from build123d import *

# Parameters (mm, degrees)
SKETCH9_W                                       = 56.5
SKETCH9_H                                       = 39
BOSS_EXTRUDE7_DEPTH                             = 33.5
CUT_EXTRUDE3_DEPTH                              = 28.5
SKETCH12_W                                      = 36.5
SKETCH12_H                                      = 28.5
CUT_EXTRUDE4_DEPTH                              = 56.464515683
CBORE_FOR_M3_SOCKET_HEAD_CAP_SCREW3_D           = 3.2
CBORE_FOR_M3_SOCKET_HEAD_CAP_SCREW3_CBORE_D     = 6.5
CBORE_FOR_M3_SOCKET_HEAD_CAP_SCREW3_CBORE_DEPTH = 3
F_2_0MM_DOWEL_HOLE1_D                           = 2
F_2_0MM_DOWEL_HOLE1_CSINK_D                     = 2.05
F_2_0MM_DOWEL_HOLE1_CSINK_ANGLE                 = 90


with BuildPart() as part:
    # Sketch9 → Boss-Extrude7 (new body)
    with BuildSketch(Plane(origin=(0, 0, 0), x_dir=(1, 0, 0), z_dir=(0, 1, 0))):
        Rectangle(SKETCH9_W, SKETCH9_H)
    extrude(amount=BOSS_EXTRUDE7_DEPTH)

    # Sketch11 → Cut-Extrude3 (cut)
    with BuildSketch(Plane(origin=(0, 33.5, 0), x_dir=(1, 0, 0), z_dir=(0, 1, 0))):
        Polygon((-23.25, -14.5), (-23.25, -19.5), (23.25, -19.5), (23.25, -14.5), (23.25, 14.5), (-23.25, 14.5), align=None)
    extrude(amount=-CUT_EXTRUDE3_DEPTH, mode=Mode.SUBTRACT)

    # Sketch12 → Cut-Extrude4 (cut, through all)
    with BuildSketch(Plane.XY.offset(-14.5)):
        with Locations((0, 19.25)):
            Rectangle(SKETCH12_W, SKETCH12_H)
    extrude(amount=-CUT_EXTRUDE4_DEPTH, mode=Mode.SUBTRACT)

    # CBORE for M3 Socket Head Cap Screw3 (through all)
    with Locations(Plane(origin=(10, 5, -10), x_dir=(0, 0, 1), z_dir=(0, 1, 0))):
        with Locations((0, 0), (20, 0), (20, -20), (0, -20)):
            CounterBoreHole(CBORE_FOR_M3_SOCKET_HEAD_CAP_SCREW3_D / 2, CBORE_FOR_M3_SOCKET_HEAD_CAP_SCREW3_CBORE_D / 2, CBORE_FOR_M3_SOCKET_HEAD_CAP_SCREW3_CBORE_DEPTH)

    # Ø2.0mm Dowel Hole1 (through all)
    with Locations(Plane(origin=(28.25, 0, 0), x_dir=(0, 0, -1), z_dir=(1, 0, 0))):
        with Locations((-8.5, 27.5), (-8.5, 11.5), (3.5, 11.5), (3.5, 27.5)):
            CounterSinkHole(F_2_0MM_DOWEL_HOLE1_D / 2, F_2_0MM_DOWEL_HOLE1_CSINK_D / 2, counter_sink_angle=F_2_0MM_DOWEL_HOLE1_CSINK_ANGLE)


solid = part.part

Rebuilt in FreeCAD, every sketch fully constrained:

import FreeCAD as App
import Part
import Sketcher


def add_polygon(sketch, points):
    """Adds a closed chain of lines whose ends are joined by coincident constraints."""
    first, n = sketch.GeometryCount, len(points)
    for a, b in zip(points, points[1:] + points[:1]):
        sketch.addGeometry(Part.LineSegment(App.Vector(*a, 0), App.Vector(*b, 0)), False)
    for i in range(n):
        sketch.addConstraint(Sketcher.Constraint("Coincident", first + i, 2, first + (i + 1) % n, 1))

doc = App.newDocument("Part")
body = doc.addObject("PartDesign::Body", "Body")

# Sketch on XZ plane
sketch1 = body.newObject("Sketcher::SketchObject", "Sketch")
sketch1.AttachmentSupport = (doc.getObject("XZ_Plane"), [""])
sketch1.MapMode = "FlatFace"
add_polygon(sketch1, [(-28.25, -19.5), (-28.25, 19.5), (28.25, 19.5), (28.25, -19.5)])  # lines 0-3
sketch1.addConstraint(Sketcher.Constraint("Vertical", 0))
sketch1.addConstraint(Sketcher.Constraint("Horizontal", 1))
sketch1.addConstraint(Sketcher.Constraint("Vertical", 2))
sketch1.addConstraint(Sketcher.Constraint("Horizontal", 3))
sketch1.addConstraint(Sketcher.Constraint("Symmetric", 0, 2, 2, 2, -1, 1))
sketch1.addConstraint(Sketcher.Constraint("DistanceY", 0, 1, 0, 2, 39.0))
sketch1.addConstraint(Sketcher.Constraint("DistanceX", 1, 1, 1, 2, 56.5))
pad1 = body.newObject("PartDesign::Pad", "Pad")
pad1.Profile = sketch1
pad1.Length = 33.5
pad1.Reversed = True

# Sketch on XZ plane
sketch2 = body.newObject("Sketcher::SketchObject", "Sketch001")
sketch2.AttachmentSupport = (doc.getObject("XZ_Plane"), [""])
sketch2.MapMode = "FlatFace"
sketch2.AttachmentOffset = App.Placement(App.Vector(0, 0, -33.5), App.Rotation())
add_polygon(sketch2, [(-23.25, 19.5), (23.25, 19.5), (23.25, -14.5), (-23.25, -14.5)])  # lines 0-3
sketch2.addConstraint(Sketcher.Constraint("Horizontal", 0))
sketch2.addConstraint(Sketcher.Constraint("Vertical", 1))
sketch2.addConstraint(Sketcher.Constraint("Horizontal", 2))
sketch2.addConstraint(Sketcher.Constraint("Vertical", 3))
sketch2.addConstraint(Sketcher.Constraint("DistanceY", 1, 2, 1, 1, 34.0))
sketch2.addConstraint(Sketcher.Constraint("DistanceX", 0, 1, 0, 2, 46.5))
sketch2.addConstraint(Sketcher.Constraint("DistanceY", -1, 1, 0, 2, 19.5))
sketch2.addConstraint(Sketcher.Constraint("DistanceX", -1, 1, 0, 2, 23.25))
pocket1 = body.newObject("PartDesign::Pocket", "Pocket")
pocket1.Profile = sketch2
pocket1.Length = 28.5
pocket1.Reversed = True

# Sketch on XY plane
sketch3 = body.newObject("Sketcher::SketchObject", "Sketch002")
sketch3.AttachmentSupport = (doc.getObject("XY_Plane"), [""])
sketch3.MapMode = "FlatFace"
sketch3.AttachmentOffset = App.Placement(App.Vector(0, 0, -14.5), App.Rotation())
add_polygon(sketch3, [(-18.25, 33.5), (-18.25, 5), (18.25, 5), (18.25, 33.5)])  # lines 0-3
sketch3.addConstraint(Sketcher.Constraint("Vertical", 0))
sketch3.addConstraint(Sketcher.Constraint("Horizontal", 1))
sketch3.addConstraint(Sketcher.Constraint("Vertical", 2))
sketch3.addConstraint(Sketcher.Constraint("Horizontal", 3))
sketch3.addConstraint(Sketcher.Constraint("DistanceX", 1, 1, 1, 2, 36.5))
sketch3.addConstraint(Sketcher.Constraint("DistanceY", 0, 2, 0, 1, 28.5))
sketch3.addConstraint(Sketcher.Constraint("DistanceY", -1, 1, 0, 2, 5.0))
sketch3.addConstraint(Sketcher.Constraint("DistanceX", 0, 2, -1, 1, 18.25))
pocket2 = body.newObject("PartDesign::Pocket", "Pocket001")
pocket2.Profile = sketch3
pocket2.Type = "ThroughAll"

# Sketch on XZ plane
sketch4 = body.newObject("Sketcher::SketchObject", "Sketch003")
sketch4.AttachmentSupport = (doc.getObject("XZ_Plane"), [""])
sketch4.MapMode = "FlatFace"
sketch4.AttachmentOffset = App.Placement(App.Vector(0, 0, -5), App.Rotation())
sketch4.addGeometry(Part.Circle(App.Vector(10, -10, 0), App.Vector(0, 0, 1), 1.6), False)
sketch4.addGeometry(Part.Circle(App.Vector(10, 10, 0), App.Vector(0, 0, 1), 1.6), False)
sketch4.addGeometry(Part.Circle(App.Vector(-10, 10, 0), App.Vector(0, 0, 1), 1.6), False)
sketch4.addGeometry(Part.Circle(App.Vector(-10, -10, 0), App.Vector(0, 0, 1), 1.6), False)
sketch4.addConstraint(Sketcher.Constraint("Equal", 0, 1))
sketch4.addConstraint(Sketcher.Constraint("Equal", 1, 2))
sketch4.addConstraint(Sketcher.Constraint("Equal", 2, 3))
sketch4.addConstraint(Sketcher.Constraint("Symmetric", 0, 3, 2, 3, -1, 1))
sketch4.addConstraint(Sketcher.Constraint("Symmetric", 1, 3, 3, 3, -1, 1))
sketch4.addConstraint(Sketcher.Constraint("Symmetric", 1, 3, 2, 3, -2))
sketch4.addConstraint(Sketcher.Constraint("Diameter", 0, 3.2))
sketch4.addConstraint(Sketcher.Constraint("DistanceX", -1, 1, 0, 3, 10.0))
sketch4.addConstraint(Sketcher.Constraint("DistanceY", 0, 3, -1, 1, 10.0))
doc.recompute()
hole = body.newObject("PartDesign::Hole", "Hole")
hole.Profile = sketch4
hole.ThreadType = "None"
hole.Diameter = 3.2
hole.DepthType = "ThroughAll"
hole.HoleCutType = "Counterbore"
hole.HoleCutDiameter = 6.5
hole.HoleCutDepth = 3
hole.Reversed = True

# Sketch on YZ plane
sketch5 = body.newObject("Sketcher::SketchObject", "Sketch004")
sketch5.AttachmentSupport = (doc.getObject("YZ_Plane"), [""])
sketch5.MapMode = "FlatFace"
sketch5.AttachmentOffset = App.Placement(App.Vector(0, 0, 28.25), App.Rotation())
sketch5.addGeometry(Part.Circle(App.Vector(27.5, 8.5, 0), App.Vector(0, 0, 1), 1), False)
sketch5.addGeometry(Part.Circle(App.Vector(11.5, 8.5, 0), App.Vector(0, 0, 1), 1), False)
sketch5.addGeometry(Part.Circle(App.Vector(11.5, -3.5, 0), App.Vector(0, 0, 1), 1), False)
sketch5.addGeometry(Part.Circle(App.Vector(27.5, -3.5, 0), App.Vector(0, 0, 1), 1), False)
sketch5.addConstraint(Sketcher.Constraint("Equal", 0, 1))
sketch5.addConstraint(Sketcher.Constraint("Equal", 1, 2))
sketch5.addConstraint(Sketcher.Constraint("Equal", 2, 3))
sketch5.addConstraint(Sketcher.Constraint("Horizontal", 0, 3, 1, 3))
sketch5.addConstraint(Sketcher.Constraint("Horizontal", 2, 3, 3, 3))
sketch5.addConstraint(Sketcher.Constraint("Vertical", 1, 3, 2, 3))
sketch5.addConstraint(Sketcher.Constraint("Vertical", 0, 3, 3, 3))
sketch5.addConstraint(Sketcher.Constraint("Diameter", 0, 2.0))
sketch5.addConstraint(Sketcher.Constraint("DistanceX", 1, 3, 0, 3, 16.0))
sketch5.addConstraint(Sketcher.Constraint("DistanceY", 2, 3, 1, 3, 12.0))
sketch5.addConstraint(Sketcher.Constraint("DistanceX", -1, 1, 0, 3, 27.5))
sketch5.addConstraint(Sketcher.Constraint("DistanceY", -1, 1, 0, 3, 8.5))
doc.recompute()
hole2 = body.newObject("PartDesign::Hole", "Hole001")
hole2.Profile = sketch5
hole2.ThreadType = "None"
hole2.Diameter = 2
hole2.DepthType = "ThroughAll"
hole2.HoleCutType = "Countersink"
hole2.HoleCutDiameter = 2.05
hole2.HoleCutCountersinkAngle = 90

doc.recompute()
